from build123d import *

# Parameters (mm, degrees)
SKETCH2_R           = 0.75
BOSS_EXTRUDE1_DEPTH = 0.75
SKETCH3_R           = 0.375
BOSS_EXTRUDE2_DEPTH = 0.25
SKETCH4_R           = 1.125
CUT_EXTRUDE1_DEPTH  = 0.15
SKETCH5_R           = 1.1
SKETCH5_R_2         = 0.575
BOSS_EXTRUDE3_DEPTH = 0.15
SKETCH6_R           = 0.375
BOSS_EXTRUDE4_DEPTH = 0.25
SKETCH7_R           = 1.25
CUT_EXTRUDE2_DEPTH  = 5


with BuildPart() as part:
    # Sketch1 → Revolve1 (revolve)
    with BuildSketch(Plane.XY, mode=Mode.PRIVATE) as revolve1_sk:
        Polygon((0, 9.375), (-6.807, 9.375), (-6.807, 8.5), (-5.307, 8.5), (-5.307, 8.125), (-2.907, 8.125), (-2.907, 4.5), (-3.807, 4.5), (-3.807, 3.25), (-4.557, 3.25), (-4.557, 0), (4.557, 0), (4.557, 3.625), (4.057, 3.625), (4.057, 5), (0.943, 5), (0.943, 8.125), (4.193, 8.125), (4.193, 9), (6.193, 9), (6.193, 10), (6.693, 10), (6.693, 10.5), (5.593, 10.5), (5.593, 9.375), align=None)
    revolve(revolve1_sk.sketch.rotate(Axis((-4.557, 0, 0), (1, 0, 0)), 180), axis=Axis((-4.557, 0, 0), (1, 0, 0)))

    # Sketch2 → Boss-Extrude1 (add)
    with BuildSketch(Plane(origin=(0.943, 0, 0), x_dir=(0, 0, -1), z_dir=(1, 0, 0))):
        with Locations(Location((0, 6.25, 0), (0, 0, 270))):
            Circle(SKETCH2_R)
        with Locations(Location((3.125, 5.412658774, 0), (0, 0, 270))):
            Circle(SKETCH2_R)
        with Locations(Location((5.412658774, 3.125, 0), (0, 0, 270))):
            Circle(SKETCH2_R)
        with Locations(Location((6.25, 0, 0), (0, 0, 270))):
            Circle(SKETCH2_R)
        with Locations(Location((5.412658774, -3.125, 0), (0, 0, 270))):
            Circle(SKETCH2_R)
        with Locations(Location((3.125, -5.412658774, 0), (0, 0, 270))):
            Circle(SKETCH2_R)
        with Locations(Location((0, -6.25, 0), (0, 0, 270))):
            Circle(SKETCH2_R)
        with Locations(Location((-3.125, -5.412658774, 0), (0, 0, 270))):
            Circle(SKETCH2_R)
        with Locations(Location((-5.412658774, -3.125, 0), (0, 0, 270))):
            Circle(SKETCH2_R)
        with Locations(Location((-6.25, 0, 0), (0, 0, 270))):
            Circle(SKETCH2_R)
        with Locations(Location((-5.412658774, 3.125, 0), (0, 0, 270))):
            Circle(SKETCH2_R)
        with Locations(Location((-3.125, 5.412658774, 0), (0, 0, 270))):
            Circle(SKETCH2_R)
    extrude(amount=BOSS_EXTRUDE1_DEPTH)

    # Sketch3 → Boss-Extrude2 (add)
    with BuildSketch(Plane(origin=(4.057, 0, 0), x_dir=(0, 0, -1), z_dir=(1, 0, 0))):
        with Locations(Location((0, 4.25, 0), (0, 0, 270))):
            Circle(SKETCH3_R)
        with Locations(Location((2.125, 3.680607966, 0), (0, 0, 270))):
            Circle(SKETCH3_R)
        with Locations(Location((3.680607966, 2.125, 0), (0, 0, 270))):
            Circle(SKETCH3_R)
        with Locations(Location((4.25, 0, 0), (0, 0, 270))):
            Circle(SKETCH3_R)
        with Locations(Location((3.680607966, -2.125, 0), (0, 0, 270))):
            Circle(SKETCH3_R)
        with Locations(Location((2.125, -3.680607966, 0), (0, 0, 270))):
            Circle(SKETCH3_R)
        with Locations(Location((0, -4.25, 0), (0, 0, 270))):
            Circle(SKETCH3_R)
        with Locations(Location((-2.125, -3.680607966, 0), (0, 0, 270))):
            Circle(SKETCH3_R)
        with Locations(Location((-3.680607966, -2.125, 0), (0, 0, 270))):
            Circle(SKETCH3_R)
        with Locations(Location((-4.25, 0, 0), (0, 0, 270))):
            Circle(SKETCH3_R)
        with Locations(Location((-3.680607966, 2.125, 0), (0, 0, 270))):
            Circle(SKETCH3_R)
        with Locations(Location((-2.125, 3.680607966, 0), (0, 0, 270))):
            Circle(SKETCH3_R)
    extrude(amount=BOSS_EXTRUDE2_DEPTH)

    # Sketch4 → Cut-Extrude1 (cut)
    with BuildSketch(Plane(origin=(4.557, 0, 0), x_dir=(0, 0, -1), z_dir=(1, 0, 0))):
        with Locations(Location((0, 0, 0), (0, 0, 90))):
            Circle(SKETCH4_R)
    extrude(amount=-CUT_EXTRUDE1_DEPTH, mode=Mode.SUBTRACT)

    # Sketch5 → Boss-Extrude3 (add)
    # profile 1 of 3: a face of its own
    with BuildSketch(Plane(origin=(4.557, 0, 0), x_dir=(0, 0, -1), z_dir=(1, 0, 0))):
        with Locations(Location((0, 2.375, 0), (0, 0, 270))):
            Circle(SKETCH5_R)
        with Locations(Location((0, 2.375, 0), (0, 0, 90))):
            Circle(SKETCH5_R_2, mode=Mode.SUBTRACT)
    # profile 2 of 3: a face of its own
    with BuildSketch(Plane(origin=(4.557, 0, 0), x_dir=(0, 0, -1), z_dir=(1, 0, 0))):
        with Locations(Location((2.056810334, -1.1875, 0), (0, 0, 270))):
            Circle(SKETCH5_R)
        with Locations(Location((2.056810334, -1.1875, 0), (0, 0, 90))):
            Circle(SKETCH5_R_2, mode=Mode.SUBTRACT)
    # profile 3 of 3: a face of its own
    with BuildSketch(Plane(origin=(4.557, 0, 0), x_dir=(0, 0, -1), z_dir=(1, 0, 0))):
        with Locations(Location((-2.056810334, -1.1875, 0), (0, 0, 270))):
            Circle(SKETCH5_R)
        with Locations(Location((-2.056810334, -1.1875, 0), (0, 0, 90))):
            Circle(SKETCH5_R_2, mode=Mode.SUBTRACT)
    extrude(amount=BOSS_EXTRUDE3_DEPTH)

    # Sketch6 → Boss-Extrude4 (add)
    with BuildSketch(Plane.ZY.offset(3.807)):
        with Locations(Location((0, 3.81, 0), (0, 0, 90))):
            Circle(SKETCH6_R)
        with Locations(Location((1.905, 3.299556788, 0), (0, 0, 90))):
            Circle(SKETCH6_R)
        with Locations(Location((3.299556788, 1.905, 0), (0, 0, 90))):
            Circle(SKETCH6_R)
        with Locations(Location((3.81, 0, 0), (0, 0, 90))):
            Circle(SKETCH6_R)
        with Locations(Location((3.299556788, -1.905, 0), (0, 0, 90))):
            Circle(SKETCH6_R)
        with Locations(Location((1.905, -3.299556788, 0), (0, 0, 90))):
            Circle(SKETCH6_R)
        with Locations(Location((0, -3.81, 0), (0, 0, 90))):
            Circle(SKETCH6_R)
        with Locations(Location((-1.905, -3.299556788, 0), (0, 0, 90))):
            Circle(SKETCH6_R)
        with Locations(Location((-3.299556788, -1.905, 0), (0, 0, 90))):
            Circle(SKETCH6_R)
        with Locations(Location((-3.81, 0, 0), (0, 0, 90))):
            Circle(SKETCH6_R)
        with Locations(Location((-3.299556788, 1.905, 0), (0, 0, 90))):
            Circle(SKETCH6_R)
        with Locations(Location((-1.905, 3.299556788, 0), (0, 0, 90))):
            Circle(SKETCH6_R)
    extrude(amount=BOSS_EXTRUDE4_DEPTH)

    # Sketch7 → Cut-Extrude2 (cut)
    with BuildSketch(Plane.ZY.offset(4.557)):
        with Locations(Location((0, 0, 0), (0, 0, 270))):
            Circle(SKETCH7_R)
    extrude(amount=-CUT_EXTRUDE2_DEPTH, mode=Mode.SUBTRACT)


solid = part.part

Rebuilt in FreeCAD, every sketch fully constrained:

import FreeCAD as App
import Part
import Sketcher
from FreeCAD import Vector

doc = App.newDocument("Part")
params = doc.addObject("Spreadsheet::Sheet", "Params")
for row, (alias, value) in enumerate([
    ("sketch1_width", "2 mm"),
    ("sketch1_height", "1 mm"),
    ("sketch1_width2", "1.5 mm"),
    ("sketch1_width3", "2.4 mm"),
    ("sketch1_width4", "0.9 mm"),
    ("revolution_angle", "360 deg"),
    ("sketch2_diameter", "1.5 mm"),
    ("pad1_length", "0.75 mm"),
    ("sketch3_diameter", "0.75 mm"),
    ("pad2_length", "0.25 mm"),
    ("sketch4_diameter", "2.25 mm"),
    ("pocket1_length", "0.15 mm"),
    ("sketch5_diameter", "2.2 mm"),
    ("sketch5_diameter2", "1.15 mm"),
    ("pad3_length", "0.15 mm"),
    ("sketch6_diameter", "0.75 mm"),
    ("pad4_length", "0.25 mm"),
    ("sketch7_diameter", "2.5 mm"),
    ("pocket2_length", "5 mm"),
], start=1):
    params.set(f"A{row}", alias)
    params.set(f"B{row}", "=" + value)
    params.setAlias(f"B{row}", alias)

body = doc.addObject("PartDesign::Body", "Body")

# Sketch on XY plane
sketch1 = doc.addObject("Sketcher::SketchObject", "Sketch")
body.addObject(sketch1)
sketch1.AttachmentSupport = (doc.XY_Plane, [""])
sketch1.MapMode = "FlatFace"
sketch1.addGeometry([
    Part.LineSegment(Vector(-6.807, 9.375, 0), Vector(-6.807, 8.5, 0)),  # 0
    Part.LineSegment(Vector(-6.807, 8.5, 0), Vector(-5.307, 8.5, 0)),  # 1
    Part.LineSegment(Vector(-5.307, 8.5, 0), Vector(-5.307, 8.125, 0)),  # 2
    Part.LineSegment(Vector(-5.307, 8.125, 0), Vector(-2.907, 8.125, 0)),  # 3
    Part.LineSegment(Vector(-2.907, 8.125, 0), Vector(-2.907, 4.5, 0)),  # 4
    Part.LineSegment(Vector(-2.907, 4.5, 0), Vector(-3.807, 4.5, 0)),  # 5
    Part.LineSegment(Vector(-3.807, 4.5, 0), Vector(-3.807, 3.25, 0)),  # 6
    Part.LineSegment(Vector(-3.807, 3.25, 0), Vector(-4.557, 3.25, 0)),  # 7
    Part.LineSegment(Vector(-4.557, 3.25, 0), Vector(-4.557, 0, 0)),  # 8
    Part.LineSegment(Vector(-4.557, 0, 0), Vector(4.557, 0, 0)),  # 9
    Part.LineSegment(Vector(4.557, 0, 0), Vector(4.557, 3.625, 0)),  # 10
    Part.LineSegment(Vector(4.557, 3.625, 0), Vector(4.057, 3.625, 0)),  # 11
    Part.LineSegment(Vector(4.057, 3.625, 0), Vector(4.057, 5, 0)),  # 12
    Part.LineSegment(Vector(4.057, 5, 0), Vector(0.943, 5, 0)),  # 13
    Part.LineSegment(Vector(0.943, 5, 0), Vector(0.943, 8.125, 0)),  # 14
    Part.LineSegment(Vector(0.943, 8.125, 0), Vector(4.193, 8.125, 0)),  # 15
    Part.LineSegment(Vector(4.193, 8.125, 0), Vector(4.193, 9, 0)),  # 16
    Part.LineSegment(Vector(4.193, 9, 0), Vector(6.193, 9, 0)),  # 17
    Part.LineSegment(Vector(6.193, 9, 0), Vector(6.193, 10, 0)),  # 18
    Part.LineSegment(Vector(6.193, 10, 0), Vector(6.693, 10, 0)),  # 19
    Part.LineSegment(Vector(6.693, 10, 0), Vector(6.693, 10.5, 0)),  # 20
    Part.LineSegment(Vector(6.693, 10.5, 0), Vector(5.593, 10.5, 0)),  # 21
    Part.LineSegment(Vector(5.593, 10.5, 0), Vector(5.593, 9.375, 0)),  # 22
    Part.LineSegment(Vector(5.593, 9.375, 0), Vector(-6.807, 9.375, 0)),  # 23
], False)
sketch1.addConstraint([
    Sketcher.Constraint("Coincident", 0, 2, 1, 1),
    Sketcher.Constraint("Coincident", 1, 2, 2, 1),
    Sketcher.Constraint("Coincident", 2, 2, 3, 1),
    Sketcher.Constraint("Coincident", 3, 2, 4, 1),
    Sketcher.Constraint("Coincident", 4, 2, 5, 1),
    Sketcher.Constraint("Coincident", 5, 2, 6, 1),
    Sketcher.Constraint("Coincident", 6, 2, 7, 1),
    Sketcher.Constraint("Coincident", 7, 2, 8, 1),
    Sketcher.Constraint("Coincident", 8, 2, 9, 1),
    Sketcher.Constraint("Coincident", 9, 2, 10, 1),
    Sketcher.Constraint("Coincident", 10, 2, 11, 1),
    Sketcher.Constraint("Coincident", 11, 2, 12, 1),
    Sketcher.Constraint("Coincident", 12, 2, 13, 1),
    Sketcher.Constraint("Coincident", 13, 2, 14, 1),
    Sketcher.Constraint("Coincident", 14, 2, 15, 1),
    Sketcher.Constraint("Coincident", 15, 2, 16, 1),
    Sketcher.Constraint("Coincident", 16, 2, 17, 1),
    Sketcher.Constraint("Coincident", 17, 2, 18, 1),
    Sketcher.Constraint("Coincident", 18, 2, 19, 1),
    Sketcher.Constraint("Coincident", 19, 2, 20, 1),
    Sketcher.Constraint("Coincident", 20, 2, 21, 1),
    Sketcher.Constraint("Coincident", 21, 2, 22, 1),
    Sketcher.Constraint("Coincident", 22, 2, 23, 1),
    Sketcher.Constraint("Coincident", 23, 2, 0, 1),
    Sketcher.Constraint("Vertical", 0),
    Sketcher.Constraint("Horizontal", 1),
    Sketcher.Constraint("Vertical", 2),
    Sketcher.Constraint("Horizontal", 3),
    Sketcher.Constraint("Vertical", 4),
    Sketcher.Constraint("Horizontal", 5),
    Sketcher.Constraint("Vertical", 6),
    Sketcher.Constraint("Horizontal", 7),
    Sketcher.Constraint("Vertical", 8),
    Sketcher.Constraint("Horizontal", 9),
    Sketcher.Constraint("Vertical", 10),
    Sketcher.Constraint("Horizontal", 11),
    Sketcher.Constraint("Vertical", 12),
    Sketcher.Constraint("Horizontal", 13),
    Sketcher.Constraint("Vertical", 14),
    Sketcher.Constraint("Horizontal", 15),
    Sketcher.Constraint("Vertical", 16),
    Sketcher.Constraint("Horizontal", 17),
    Sketcher.Constraint("Vertical", 18),
    Sketcher.Constraint("Horizontal", 19),
    Sketcher.Constraint("Vertical", 20),
    Sketcher.Constraint("Horizontal", 21),
    Sketcher.Constraint("Vertical", 22),
    Sketcher.Constraint("Horizontal", 23),
    Sketcher.Constraint("Symmetric", 8, 2, 9, 2, -1, 1),
    Sketcher.Constraint("Horizontal", 3, 2, 14, 2),
    Sketcher.Constraint("Equal", 11, 19),
    Sketcher.Constraint("Equal", 15, 8),
    Sketcher.Constraint("Equal", 4, 10),
    Sketcher.Constraint("Equal", 0, 16),
    Sketcher.Constraint("Equal", 19, 20),
    Sketcher.Constraint("DistanceX", 17, 1, 17, 2, 2.0),
    Sketcher.Constraint("DistanceY", 18, 1, 18, 2, 1.0),
    Sketcher.Constraint("DistanceX", 1, 1, 1, 2, 1.5),
    Sketcher.Constraint("DistanceX", 3, 1, 3, 2, 2.4),
    Sketcher.Constraint("DistanceX", 5, 2, 5, 1, 0.9),
    Sketcher.Constraint("DistanceX", 11, 2, 11, 1, 0.5),
    Sketcher.Constraint("DistanceX", 21, 2, 21, 1, 1.1),
    Sketcher.Constraint("DistanceX", 23, 2, 23, 1, 12.4),
    Sketcher.Constraint("DistanceY", -1, 1, 12, 2, 5.0),
    Sketcher.Constraint("DistanceY", -1, 1, 16, 2, 9.0),
    Sketcher.Constraint("DistanceY", 4, 2, 1, 2, 4.0),
    Sketcher.Constraint("DistanceX", 7, 2, 7, 1, 0.75),
    Sketcher.Constraint("DistanceX", 15, 1, 15, 2, 3.25),
    Sketcher.Constraint("DistanceY", 6, 2, 6, 1, 1.25),
    Sketcher.Constraint("DistanceX", 9, 1, 9, 2, 9.114),
    Sketcher.Constraint("DistanceY", 0, 2, 0, 1, 0.875),
])
sketch1.setExpression("Constraints[55]", "Params.sketch1_width")
sketch1.setExpression("Constraints[56]", "Params.sketch1_height")
sketch1.setExpression("Constraints[57]", "Params.sketch1_width2")
sketch1.setExpression("Constraints[58]", "Params.sketch1_width3")
sketch1.setExpression("Constraints[59]", "Params.sketch1_width4")
revolution = doc.addObject("PartDesign::Revolution", "Revolution")
body.addObject(revolution)
revolution.Profile = sketch1
revolution.ReferenceAxis = (sketch1, ["H_Axis"])
revolution.setExpression("Angle", "Params.revolution_angle")

# Sketch on YZ plane
sketch2 = doc.addObject("Sketcher::SketchObject", "Sketch001")
body.addObject(sketch2)
sketch2.AttachmentSupport = (doc.YZ_Plane, [""])
sketch2.MapMode = "FlatFace"
sketch2.AttachmentOffset = App.Placement(Vector(0, 0, 0.943), App.Rotation())
sketch2.addGeometry([
    Part.Circle(Vector(6.25, 0, 0), Vector(0, 0, 1), 0.75),  # 0
    Part.Circle(Vector(5.412659, -3.125, 0), Vector(0, 0, 1), 0.75),  # 1
    Part.Circle(Vector(3.125, -5.412659, 0), Vector(0, 0, 1), 0.75),  # 2
    Part.Circle(Vector(0, -6.25, 0), Vector(0, 0, 1), 0.75),  # 3
    Part.Circle(Vector(-3.125, -5.412659, 0), Vector(0, 0, 1), 0.75),  # 4
    Part.Circle(Vector(-5.412659, -3.125, 0), Vector(0, 0, 1), 0.75),  # 5
    Part.Circle(Vector(-6.25, 0, 0), Vector(0, 0, 1), 0.75),  # 6
    Part.Circle(Vector(-5.412659, 3.125, 0), Vector(0, 0, 1), 0.75),  # 7
    Part.Circle(Vector(-3.125, 5.412659, 0), Vector(0, 0, 1), 0.75),  # 8
    Part.Circle(Vector(0, 6.25, 0), Vector(0, 0, 1), 0.75),  # 9
    Part.Circle(Vector(3.125, 5.412659, 0), Vector(0, 0, 1), 0.75),  # 10
    Part.Circle(Vector(5.412659, 3.125, 0), Vector(0, 0, 1), 0.75),  # 11
], False)
sketch2.addConstraint([
    Sketcher.Constraint("Equal", 0, 1),
    Sketcher.Constraint("Equal", 1, 2),
    Sketcher.Constraint("Equal", 2, 3),
    Sketcher.Constraint("Equal", 3, 4),
    Sketcher.Constraint("Equal", 4, 5),
    Sketcher.Constraint("Equal", 5, 6),
    Sketcher.Constraint("Equal", 6, 7),
    Sketcher.Constraint("Equal", 7, 8),
    Sketcher.Constraint("Equal", 8, 9),
    Sketcher.Constraint("Equal", 9, 10),
    Sketcher.Constraint("Equal", 10, 11),
    Sketcher.Constraint("Symmetric", 0, 3, 6, 3, -1, 1),
    Sketcher.Constraint("Symmetric", 1, 3, 7, 3, -1, 1),
    Sketcher.Constraint("Symmetric", 2, 3, 8, 3, -1, 1),
    Sketcher.Constraint("Symmetric", 3, 3, 9, 3, -1, 1),
    Sketcher.Constraint("Symmetric", 4, 3, 10, 3, -1, 1),
    Sketcher.Constraint("Symmetric", 5, 3, 11, 3, -1, 1),
    Sketcher.Constraint("Symmetric", 2, 3, 4, 3, -2),
    Sketcher.Constraint("Symmetric", 1, 3, 5, 3, -2),
    Sketcher.Constraint("PointOnObject", 0, 3, -1),
    Sketcher.Constraint("PointOnObject", 3, 3, -2),
    Sketcher.Constraint("Diameter", 0, 1.5),
    Sketcher.Constraint("DistanceX", -1, 1, 0, 3, 6.25),
    Sketcher.Constraint("DistanceY", 3, 3, -1, 1, 6.25),
    Sketcher.Constraint("DistanceX", 4, 3, 2, 3, 6.25),
    Sketcher.Constraint("DistanceY", 5, 3, 7, 3, 6.25),
    Sketcher.Constraint("DistanceX", -1, 1, 1, 3, 5.412659),
    Sketcher.Constraint("DistanceY", 2, 3, -1, 1, 5.412659),
])
sketch2.setExpression("Constraints[21]", "Params.sketch2_diameter")
pad1 = doc.addObject("PartDesign::Pad", "Pad")
body.addObject(pad1)
pad1.Profile = sketch2
pad1.setExpression("Length", "Params.pad1_length")

# Sketch on YZ plane
sketch3 = doc.addObject("Sketcher::SketchObject", "Sketch002")
body.addObject(sketch3)
sketch3.AttachmentSupport = (doc.YZ_Plane, [""])
sketch3.MapMode = "FlatFace"
sketch3.AttachmentOffset = App.Placement(Vector(0, 0, 4.057), App.Rotation())
sketch3.addGeometry([
    Part.Circle(Vector(4.25, 0, 0), Vector(0, 0, 1), 0.375),  # 0
    Part.Circle(Vector(3.680608, -2.125, 0), Vector(0, 0, 1), 0.375),  # 1
    Part.Circle(Vector(2.125, -3.680608, 0), Vector(0, 0, 1), 0.375),  # 2
    Part.Circle(Vector(0, -4.25, 0), Vector(0, 0, 1), 0.375),  # 3
    Part.Circle(Vector(-2.125, -3.680608, 0), Vector(0, 0, 1), 0.375),  # 4
    Part.Circle(Vector(-3.680608, -2.125, 0), Vector(0, 0, 1), 0.375),  # 5
    Part.Circle(Vector(-4.25, 0, 0), Vector(0, 0, 1), 0.375),  # 6
    Part.Circle(Vector(-3.680608, 2.125, 0), Vector(0, 0, 1), 0.375),  # 7
    Part.Circle(Vector(-2.125, 3.680608, 0), Vector(0, 0, 1), 0.375),  # 8
    Part.Circle(Vector(0, 4.25, 0), Vector(0, 0, 1), 0.375),  # 9
    Part.Circle(Vector(2.125, 3.680608, 0), Vector(0, 0, 1), 0.375),  # 10
    Part.Circle(Vector(3.680608, 2.125, 0), Vector(0, 0, 1), 0.375),  # 11
], False)
sketch3.addConstraint([
    Sketcher.Constraint("Equal", 0, 1),
    Sketcher.Constraint("Equal", 1, 2),
    Sketcher.Constraint("Equal", 2, 3),
    Sketcher.Constraint("Equal", 3, 4),
    Sketcher.Constraint("Equal", 4, 5),
    Sketcher.Constraint("Equal", 5, 6),
    Sketcher.Constraint("Equal", 6, 7),
    Sketcher.Constraint("Equal", 7, 8),
    Sketcher.Constraint("Equal", 8, 9),
    Sketcher.Constraint("Equal", 9, 10),
    Sketcher.Constraint("Equal", 10, 11),
    Sketcher.Constraint("Symmetric", 0, 3, 6, 3, -1, 1),
    Sketcher.Constraint("Symmetric", 1, 3, 7, 3, -1, 1),
    Sketcher.Constraint("Symmetric", 2, 3, 8, 3, -1, 1),
    Sketcher.Constraint("Symmetric", 3, 3, 9, 3, -1, 1),
    Sketcher.Constraint("Symmetric", 4, 3, 10, 3, -1, 1),
    Sketcher.Constraint("Symmetric", 5, 3, 11, 3, -1, 1),
    Sketcher.Constraint("Symmetric", 2, 3, 4, 3, -2),
    Sketcher.Constraint("Symmetric", 1, 3, 5, 3, -2),
    Sketcher.Constraint("PointOnObject", 0, 3, -1),
    Sketcher.Constraint("PointOnObject", 3, 3, -2),
    Sketcher.Constraint("Diameter", 0, 0.75),
    Sketcher.Constraint("DistanceX", -1, 1, 0, 3, 4.25),
    Sketcher.Constraint("DistanceY", 3, 3, -1, 1, 4.25),
    Sketcher.Constraint("DistanceX", 4, 3, 2, 3, 4.25),
    Sketcher.Constraint("DistanceY", 5, 3, 7, 3, 4.25),
    Sketcher.Constraint("DistanceX", -1, 1, 1, 3, 3.680608),
    Sketcher.Constraint("DistanceY", 2, 3, -1, 1, 3.680608),
])
sketch3.setExpression("Constraints[21]", "Params.sketch3_diameter")
pad2 = doc.addObject("PartDesign::Pad", "Pad001")
body.addObject(pad2)
pad2.Profile = sketch3
pad2.setExpression("Length", "Params.pad2_length")

# Sketch on YZ plane
sketch4 = doc.addObject("Sketcher::SketchObject", "Sketch003")
body.addObject(sketch4)
sketch4.AttachmentSupport = (doc.YZ_Plane, [""])
sketch4.MapMode = "FlatFace"
sketch4.AttachmentOffset = App.Placement(Vector(0, 0, 4.557), App.Rotation())
sketch4.addGeometry(Part.Circle(Vector(0, 0, 0), Vector(0, 0, 1), 1.125), False)
sketch4.addConstraint([
    Sketcher.Constraint("Coincident", 0, 3, -1, 1),
    Sketcher.Constraint("Diameter", 0, 2.25),
])
sketch4.setExpression("Constraints[1]", "Params.sketch4_diameter")
pocket1 = doc.addObject("PartDesign::Pocket", "Pocket")
body.addObject(pocket1)
pocket1.Profile = sketch4
pocket1.setExpression("Length", "Params.pocket1_length")

# Sketch on YZ plane
sketch5 = doc.addObject("Sketcher::SketchObject", "Sketch004")
body.addObject(sketch5)
sketch5.AttachmentSupport = (doc.YZ_Plane, [""])
sketch5.MapMode = "FlatFace"
sketch5.AttachmentOffset = App.Placement(Vector(0, 0, 4.557), App.Rotation())
sketch5.addGeometry([
    Part.Circle(Vector(2.375, 0, 0), Vector(0, 0, 1), 1.1),  # 0
    Part.Circle(Vector(2.375, 0, 0), Vector(0, 0, 1), 0.575),  # 1
    Part.Circle(Vector(-1.1875, -2.05681, 0), Vector(0, 0, 1), 1.1),  # 2
    Part.Circle(Vector(-1.1875, -2.05681, 0), Vector(0, 0, 1), 0.575),  # 3
    Part.Circle(Vector(-1.1875, 2.05681, 0), Vector(0, 0, 1), 1.1),  # 4
    Part.Circle(Vector(-1.1875, 2.05681, 0), Vector(0, 0, 1), 0.575),  # 5
], False)
sketch5.addConstraint([
    Sketcher.Constraint("Coincident", 1, 3, 0, 3),
    Sketcher.Constraint("Coincident", 3, 3, 2, 3),
    Sketcher.Constraint("Coincident", 5, 3, 4, 3),
    Sketcher.Constraint("Equal", 0, 2),
    Sketcher.Constraint("Equal", 1, 3),
    Sketcher.Constraint("Equal", 2, 4),
    Sketcher.Constraint("Equal", 3, 5),
    Sketcher.Constraint("Symmetric", 2, 3, 4, 3, -1),
    Sketcher.Constraint("PointOnObject", 0, 3, -1),
    Sketcher.Constraint("Diameter", 0, 2.2),
    Sketcher.Constraint("Diameter", 1, 1.15),
    Sketcher.Constraint("DistanceX", -1, 1, 0, 3, 2.375),
    Sketcher.Constraint("DistanceX", 2, 3, -1, 1, 1.1875),
    Sketcher.Constraint("DistanceY", 2, 3, -1, 1, 2.05681),
])
sketch5.setExpression("Constraints[9]", "Params.sketch5_diameter")
sketch5.setExpression("Constraints[10]", "Params.sketch5_diameter2")
pad3 = doc.addObject("PartDesign::Pad", "Pad002")
body.addObject(pad3)
pad3.Profile = sketch5
pad3.setExpression("Length", "Params.pad3_length")

# Sketch on YZ plane
sketch6 = doc.addObject("Sketcher::SketchObject", "Sketch005")
body.addObject(sketch6)
sketch6.AttachmentSupport = (doc.YZ_Plane, [""])
sketch6.MapMode = "FlatFace"
sketch6.AttachmentOffset = App.Placement(Vector(0, 0, -3.807), App.Rotation())
sketch6.addGeometry([
    Part.Circle(Vector(3.81, 0, 0), Vector(0, 0, 1), 0.375),  # 0
    Part.Circle(Vector(3.299557, 1.905, 0), Vector(0, 0, 1), 0.375),  # 1
    Part.Circle(Vector(1.905, 3.299557, 0), Vector(0, 0, 1), 0.375),  # 2
    Part.Circle(Vector(0, 3.81, 0), Vector(0, 0, 1), 0.375),  # 3
    Part.Circle(Vector(-1.905, 3.299557, 0), Vector(0, 0, 1), 0.375),  # 4
    Part.Circle(Vector(-3.299557, 1.905, 0), Vector(0, 0, 1), 0.375),  # 5
    Part.Circle(Vector(-3.81, 0, 0), Vector(0, 0, 1), 0.375),  # 6
    Part.Circle(Vector(-3.299557, -1.905, 0), Vector(0, 0, 1), 0.375),  # 7
    Part.Circle(Vector(-1.905, -3.299557, 0), Vector(0, 0, 1), 0.375),  # 8
    Part.Circle(Vector(0, -3.81, 0), Vector(0, 0, 1), 0.375),  # 9
    Part.Circle(Vector(1.905, -3.299557, 0), Vector(0, 0, 1), 0.375),  # 10
    Part.Circle(Vector(3.299557, -1.905, 0), Vector(0, 0, 1), 0.375),  # 11
], False)
sketch6.addConstraint([
    Sketcher.Constraint("Equal", 0, 1),
    Sketcher.Constraint("Equal", 1, 2),
    Sketcher.Constraint("Equal", 2, 3),
    Sketcher.Constraint("Equal", 3, 4),
    Sketcher.Constraint("Equal", 4, 5),
    Sketcher.Constraint("Equal", 5, 6),
    Sketcher.Constraint("Equal", 6, 7),
    Sketcher.Constraint("Equal", 7, 8),
    Sketcher.Constraint("Equal", 8, 9),
    Sketcher.Constraint("Equal", 9, 10),
    Sketcher.Constraint("Equal", 10, 11),
    Sketcher.Constraint("Symmetric", 0, 3, 6, 3, -1, 1),
    Sketcher.Constraint("Symmetric", 1, 3, 7, 3, -1, 1),
    Sketcher.Constraint("Symmetric", 2, 3, 8, 3, -1, 1),
    Sketcher.Constraint("Symmetric", 3, 3, 9, 3, -1, 1),
    Sketcher.Constraint("Symmetric", 4, 3, 10, 3, -1, 1),
    Sketcher.Constraint("Symmetric", 5, 3, 11, 3, -1, 1),
    Sketcher.Constraint("Symmetric", 2, 3, 4, 3, -2),
    Sketcher.Constraint("Symmetric", 1, 3, 5, 3, -2),
    Sketcher.Constraint("PointOnObject", 0, 3, -1),
    Sketcher.Constraint("PointOnObject", 3, 3, -2),
    Sketcher.Constraint("Diameter", 0, 0.75),
    Sketcher.Constraint("DistanceX", -1, 1, 0, 3, 3.81),
    Sketcher.Constraint("DistanceY", -1, 1, 3, 3, 3.81),
    Sketcher.Constraint("DistanceX", 4, 3, 2, 3, 3.81),
    Sketcher.Constraint("DistanceY", 7, 3, 5, 3, 3.81),
    Sketcher.Constraint("DistanceX", -1, 1, 1, 3, 3.299557),
    Sketcher.Constraint("DistanceY", -1, 1, 2, 3, 3.299557),
])
sketch6.setExpression("Constraints[21]", "Params.sketch6_diameter")
pad4 = doc.addObject("PartDesign::Pad", "Pad003")
body.addObject(pad4)
pad4.Profile = sketch6
pad4.setExpression("Length", "Params.pad4_length")
pad4.Reversed = True

# Sketch on YZ plane
sketch7 = doc.addObject("Sketcher::SketchObject", "Sketch006")
body.addObject(sketch7)
sketch7.AttachmentSupport = (doc.YZ_Plane, [""])
sketch7.MapMode = "FlatFace"
sketch7.AttachmentOffset = App.Placement(Vector(0, 0, -4.557), App.Rotation())
sketch7.addGeometry(Part.Circle(Vector(0, 0, 0), Vector(0, 0, 1), 1.25), False)
sketch7.addConstraint([
    Sketcher.Constraint("Coincident", 0, 3, -1, 1),
    Sketcher.Constraint("Diameter", 0, 2.5),
])
sketch7.setExpression("Constraints[1]", "Params.sketch7_diameter")
pocket2 = doc.addObject("PartDesign::Pocket", "Pocket001")
body.addObject(pocket2)
pocket2.Profile = sketch7
pocket2.setExpression("Length", "Params.pocket2_length")
pocket2.Reversed = True

doc.recompute()
